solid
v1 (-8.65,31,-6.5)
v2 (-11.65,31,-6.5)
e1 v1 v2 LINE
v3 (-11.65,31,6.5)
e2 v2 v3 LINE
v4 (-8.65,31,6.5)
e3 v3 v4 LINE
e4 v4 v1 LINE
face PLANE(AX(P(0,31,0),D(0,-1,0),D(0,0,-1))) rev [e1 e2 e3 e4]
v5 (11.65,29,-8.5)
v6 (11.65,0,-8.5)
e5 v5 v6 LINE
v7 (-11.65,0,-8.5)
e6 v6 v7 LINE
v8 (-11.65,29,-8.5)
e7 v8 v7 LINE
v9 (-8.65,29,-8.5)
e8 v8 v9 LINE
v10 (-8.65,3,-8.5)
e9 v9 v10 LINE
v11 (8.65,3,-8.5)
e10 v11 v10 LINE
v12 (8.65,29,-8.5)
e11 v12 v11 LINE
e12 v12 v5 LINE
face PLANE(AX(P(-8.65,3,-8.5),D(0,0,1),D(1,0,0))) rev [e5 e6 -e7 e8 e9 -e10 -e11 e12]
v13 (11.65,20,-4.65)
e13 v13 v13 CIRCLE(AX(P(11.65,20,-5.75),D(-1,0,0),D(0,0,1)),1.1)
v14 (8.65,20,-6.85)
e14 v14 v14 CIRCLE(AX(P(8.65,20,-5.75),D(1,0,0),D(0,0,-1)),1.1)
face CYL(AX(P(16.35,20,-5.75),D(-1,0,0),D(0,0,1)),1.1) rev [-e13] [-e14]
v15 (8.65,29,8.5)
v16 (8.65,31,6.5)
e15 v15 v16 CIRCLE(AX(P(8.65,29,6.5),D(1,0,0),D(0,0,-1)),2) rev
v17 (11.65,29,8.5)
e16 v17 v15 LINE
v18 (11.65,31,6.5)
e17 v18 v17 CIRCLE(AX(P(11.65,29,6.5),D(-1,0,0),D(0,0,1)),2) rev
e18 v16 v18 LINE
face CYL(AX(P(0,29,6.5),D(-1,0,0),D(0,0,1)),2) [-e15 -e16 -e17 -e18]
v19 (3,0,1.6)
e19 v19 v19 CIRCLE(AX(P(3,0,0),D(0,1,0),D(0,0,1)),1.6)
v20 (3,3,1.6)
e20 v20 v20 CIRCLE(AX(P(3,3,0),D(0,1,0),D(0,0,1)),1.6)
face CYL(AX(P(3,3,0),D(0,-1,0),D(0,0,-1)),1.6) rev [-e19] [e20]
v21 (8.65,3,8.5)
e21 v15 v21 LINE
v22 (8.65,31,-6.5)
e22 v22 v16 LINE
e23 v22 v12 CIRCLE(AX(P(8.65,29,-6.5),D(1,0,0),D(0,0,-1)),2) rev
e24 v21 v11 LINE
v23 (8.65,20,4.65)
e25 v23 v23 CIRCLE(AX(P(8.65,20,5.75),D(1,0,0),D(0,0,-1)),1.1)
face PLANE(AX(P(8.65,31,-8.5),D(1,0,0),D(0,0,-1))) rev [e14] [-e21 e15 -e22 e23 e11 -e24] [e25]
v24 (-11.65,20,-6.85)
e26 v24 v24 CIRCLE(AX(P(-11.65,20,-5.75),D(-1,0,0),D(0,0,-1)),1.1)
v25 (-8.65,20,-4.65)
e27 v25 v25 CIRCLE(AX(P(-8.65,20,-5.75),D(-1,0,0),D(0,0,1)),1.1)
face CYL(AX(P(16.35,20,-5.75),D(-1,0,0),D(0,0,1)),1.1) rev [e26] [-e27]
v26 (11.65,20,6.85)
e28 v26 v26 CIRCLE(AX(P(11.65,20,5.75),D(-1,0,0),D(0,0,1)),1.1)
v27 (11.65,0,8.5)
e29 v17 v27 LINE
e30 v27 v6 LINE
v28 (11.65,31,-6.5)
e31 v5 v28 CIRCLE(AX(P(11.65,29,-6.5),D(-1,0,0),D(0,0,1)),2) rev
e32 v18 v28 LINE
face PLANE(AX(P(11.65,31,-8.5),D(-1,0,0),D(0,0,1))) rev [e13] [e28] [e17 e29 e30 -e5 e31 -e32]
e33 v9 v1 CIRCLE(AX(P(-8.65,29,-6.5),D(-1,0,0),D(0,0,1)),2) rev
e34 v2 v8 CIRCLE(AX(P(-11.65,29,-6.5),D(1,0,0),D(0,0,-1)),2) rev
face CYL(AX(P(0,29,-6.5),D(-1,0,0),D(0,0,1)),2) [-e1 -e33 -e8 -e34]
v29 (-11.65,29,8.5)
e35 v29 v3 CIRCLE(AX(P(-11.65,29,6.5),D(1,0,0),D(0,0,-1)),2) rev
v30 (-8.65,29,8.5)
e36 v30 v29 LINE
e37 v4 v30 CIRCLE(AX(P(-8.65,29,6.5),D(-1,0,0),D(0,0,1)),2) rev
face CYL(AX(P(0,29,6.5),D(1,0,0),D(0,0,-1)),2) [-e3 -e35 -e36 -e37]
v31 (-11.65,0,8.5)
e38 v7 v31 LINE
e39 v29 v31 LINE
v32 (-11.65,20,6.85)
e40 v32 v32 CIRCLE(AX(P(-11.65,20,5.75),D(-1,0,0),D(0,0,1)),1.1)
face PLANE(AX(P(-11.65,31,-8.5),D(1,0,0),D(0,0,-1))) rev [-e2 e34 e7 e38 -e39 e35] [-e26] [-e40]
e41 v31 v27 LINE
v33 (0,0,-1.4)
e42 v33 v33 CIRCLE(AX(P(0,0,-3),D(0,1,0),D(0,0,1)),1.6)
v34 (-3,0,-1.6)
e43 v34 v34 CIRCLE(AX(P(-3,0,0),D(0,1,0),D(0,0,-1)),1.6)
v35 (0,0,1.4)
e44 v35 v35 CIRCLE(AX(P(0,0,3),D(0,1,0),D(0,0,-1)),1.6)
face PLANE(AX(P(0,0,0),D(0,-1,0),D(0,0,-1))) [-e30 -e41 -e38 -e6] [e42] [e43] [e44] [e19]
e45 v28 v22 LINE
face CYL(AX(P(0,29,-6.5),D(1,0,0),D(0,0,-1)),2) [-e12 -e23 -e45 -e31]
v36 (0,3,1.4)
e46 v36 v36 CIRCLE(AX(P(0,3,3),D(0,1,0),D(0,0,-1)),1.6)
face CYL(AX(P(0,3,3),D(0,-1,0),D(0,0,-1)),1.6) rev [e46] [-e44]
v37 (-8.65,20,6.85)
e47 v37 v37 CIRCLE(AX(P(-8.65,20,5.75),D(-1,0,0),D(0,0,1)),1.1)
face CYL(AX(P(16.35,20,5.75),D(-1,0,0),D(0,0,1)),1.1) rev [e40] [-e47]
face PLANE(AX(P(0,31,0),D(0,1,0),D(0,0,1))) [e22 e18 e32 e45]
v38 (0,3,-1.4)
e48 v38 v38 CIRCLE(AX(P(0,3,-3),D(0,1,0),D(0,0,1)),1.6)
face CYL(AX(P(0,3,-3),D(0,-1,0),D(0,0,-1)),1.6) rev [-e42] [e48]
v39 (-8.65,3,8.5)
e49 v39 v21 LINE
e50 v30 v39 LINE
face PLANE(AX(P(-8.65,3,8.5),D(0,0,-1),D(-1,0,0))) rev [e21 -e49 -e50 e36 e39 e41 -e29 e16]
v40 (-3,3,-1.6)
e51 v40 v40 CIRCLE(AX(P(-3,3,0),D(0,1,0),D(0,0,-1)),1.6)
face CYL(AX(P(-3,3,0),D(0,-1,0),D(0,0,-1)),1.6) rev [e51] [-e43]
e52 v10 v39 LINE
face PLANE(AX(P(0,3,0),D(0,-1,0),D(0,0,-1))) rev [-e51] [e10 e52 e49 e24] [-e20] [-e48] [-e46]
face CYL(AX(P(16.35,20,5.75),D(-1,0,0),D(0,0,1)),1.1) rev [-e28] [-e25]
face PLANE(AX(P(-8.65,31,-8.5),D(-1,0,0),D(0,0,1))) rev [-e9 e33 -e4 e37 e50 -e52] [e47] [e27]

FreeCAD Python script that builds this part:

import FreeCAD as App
import Part
import Sketcher
from FreeCAD import Vector


def edges_at(feature, points):
    """Names of the edges that pass closest to the given points."""
    edges = feature.Shape.Edges
    near = lambda p: min(range(len(edges)), key=lambda i: edges[i].distToShape(Part.Vertex(*p))[0])
    return sorted({f"Edge{near(p) + 1}" for p in points})


def add_polygon(sketch, points):
    """Adds a closed chain of lines whose ends are joined by coincident constraints."""
    first, n = sketch.GeometryCount, len(points)
    for a, b in zip(points, points[1:] + points[:1]):
        sketch.addGeometry(Part.LineSegment(App.Vector(*a, 0), App.Vector(*b, 0)), False)
    for i in range(n):
        sketch.addConstraint(Sketcher.Constraint("Coincident", first + i, 2, first + (i + 1) % n, 1))

doc = App.newDocument("Part")
body = doc.addObject("PartDesign::Body", "Body")

sketch1 = body.newObject("Sketcher::SketchObject", "Sketch")
sketch1.AttachmentSupport = (doc.getObject("XZ_Plane"), [""])
sketch1.MapMode = "FlatFace"
add_polygon(sketch1, [(-8.7, -8.5), (-8.7, 8.5), (8.7, 8.5), (8.7, -8.5)])
sketch1.addGeometry(Part.Circle(Vector(0, 3, 0), Vector(0, 0, 1), 1.6), False)
sketch1.addGeometry(Part.Circle(Vector(-3, 0, 0), Vector(0, 0, 1), 1.6), False)
sketch1.addGeometry(Part.Circle(Vector(3, 0, 0), Vector(0, 0, 1), 1.6), False)
sketch1.addGeometry(Part.Circle(Vector(0, -3, 0), Vector(0, 0, 1), 1.6), False)
sketch1.addConstraint(Sketcher.Constraint("Vertical", 0))
sketch1.addConstraint(Sketcher.Constraint("Horizontal", 1))
sketch1.addConstraint(Sketcher.Constraint("Vertical", 2))
sketch1.addConstraint(Sketcher.Constraint("Horizontal", 3))
sketch1.addConstraint(Sketcher.Constraint("Equal", 4, 5))
sketch1.addConstraint(Sketcher.Constraint("Equal", 5, 6))
sketch1.addConstraint(Sketcher.Constraint("Equal", 6, 7))
sketch1.addConstraint(Sketcher.Constraint("Symmetric", 5, 3, 6, 3, -1, 1))
sketch1.addConstraint(Sketcher.Constraint("Symmetric", 4, 3, 7, 3, -1, 1))
sketch1.addConstraint(Sketcher.Constraint("Symmetric", 0, 2, 2, 2, -1, 1))
sketch1.addConstraint(Sketcher.Constraint("PointOnObject", 4, 3, -2))
sketch1.addConstraint(Sketcher.Constraint("PointOnObject", 5, 3, -1))
sketch1.addConstraint(Sketcher.Constraint("Diameter", 4, 3.2))
sketch1.addConstraint(Sketcher.Constraint("DistanceY", 0, 1, 0, 2, 17.0))
sketch1.addConstraint(Sketcher.Constraint("DistanceX", 1, 1, 1, 2, 17.3))
sketch1.addConstraint(Sketcher.Constraint("DistanceY", -1, 1, 4, 3, 3.0))
sketch1.addConstraint(Sketcher.Constraint("DistanceX", 5, 3, -1, 1, 3.0))
pad1 = body.newObject("PartDesign::Pad", "Pad")
pad1.Profile = sketch1
pad1.Length = 3
pad1.Reversed = True

sketch2 = body.newObject("Sketcher::SketchObject", "Sketch001")
sketch2.AttachmentSupport = (doc.getObject("XZ_Plane"), [""])
sketch2.MapMode = "FlatFace"
add_polygon(sketch2, [(8.7, -8.5), (8.7, 8.5), (11.7, 8.5), (11.7, -8.5)])
add_polygon(sketch2, [(-11.7, -8.5), (-11.7, 8.5), (-8.7, 8.5), (-8.7, -8.5)])
sketch2.addConstraint(Sketcher.Constraint("Vertical", 0))
sketch2.addConstraint(Sketcher.Constraint("Horizontal", 1))
sketch2.addConstraint(Sketcher.Constraint("Vertical", 2))
sketch2.addConstraint(Sketcher.Constraint("Horizontal", 3))
sketch2.addConstraint(Sketcher.Constraint("Vertical", 4))
sketch2.addConstraint(Sketcher.Constraint("Horizontal", 5))
sketch2.addConstraint(Sketcher.Constraint("Vertical", 6))
sketch2.addConstraint(Sketcher.Constraint("Horizontal", 7))
sketch2.addConstraint(Sketcher.Constraint("Symmetric", 2, 2, 4, 2, -1, 1))
sketch2.addConstraint(Sketcher.Constraint("Symmetric", 0, 2, 6, 2, -1, 1))
sketch2.addConstraint(Sketcher.Constraint("Horizontal", 1, 2, 4, 2))
sketch2.addConstraint(Sketcher.Constraint("DistanceX", 1, 1, 1, 2, 3.0))
sketch2.addConstraint(Sketcher.Constraint("DistanceY", 0, 1, 0, 2, 17.0))
sketch2.addConstraint(Sketcher.Constraint("DistanceX", 4, 2, 0, 2, 20.3))
pad2 = body.newObject("PartDesign::Pad", "Pad001")
pad2.Profile = sketch2
pad2.Length = 31
pad2.Reversed = True
doc.recompute()

fillet = body.newObject("PartDesign::Fillet", "Fillet")
fillet.Base = (pad2, edges_at(pad2, [
    (-10.15, 31, -8.5),
    (-10.15, 31, 8.5),
    (10.15, 31, 8.5),
    (10.15, 31, -8.5),
]))
fillet.Radius = 2

sketch3 = body.newObject("Sketcher::SketchObject", "Sketch002")
sketch3.AttachmentSupport = (doc.getObject("YZ_Plane"), [""])
sketch3.MapMode = "FlatFace"
sketch3.AttachmentOffset = App.Placement(Vector(0, 0, -11.65), App.Rotation())
sketch3.addGeometry(Part.Circle(Vector(20, 5.8, 0), Vector(0, 0, 1), 1.1), False)
sketch3.addGeometry(Part.Circle(Vector(20, -5.8, 0), Vector(0, 0, 1), 1.1), False)
sketch3.addConstraint(Sketcher.Constraint("Equal", 0, 1))
sketch3.addConstraint(Sketcher.Constraint("Symmetric", 0, 3, 1, 3, -1))
sketch3.addConstraint(Sketcher.Constraint("Diameter", 0, 2.2))
sketch3.addConstraint(Sketcher.Constraint("DistanceX", -1, 1, 0, 3, 20.0))
sketch3.addConstraint(Sketcher.Constraint("DistanceY", 1, 3, 0, 3, 11.5))
pocket1 = body.newObject("PartDesign::Pocket", "Pocket")
pocket1.Profile = sketch3
pocket1.Length = 28
pocket1.Reversed = True

doc.recompute()
